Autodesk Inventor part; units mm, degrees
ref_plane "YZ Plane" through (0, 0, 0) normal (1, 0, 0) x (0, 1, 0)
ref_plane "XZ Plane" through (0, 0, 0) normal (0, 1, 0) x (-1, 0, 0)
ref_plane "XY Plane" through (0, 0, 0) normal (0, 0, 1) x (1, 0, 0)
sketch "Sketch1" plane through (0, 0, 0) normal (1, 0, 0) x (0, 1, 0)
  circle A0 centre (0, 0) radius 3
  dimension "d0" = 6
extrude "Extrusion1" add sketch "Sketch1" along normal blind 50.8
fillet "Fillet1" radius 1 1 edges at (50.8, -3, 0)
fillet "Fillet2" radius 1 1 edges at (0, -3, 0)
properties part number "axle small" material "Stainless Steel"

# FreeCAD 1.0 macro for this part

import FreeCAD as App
import Part
import Sketcher


def edges_at(feature, points):
    """Names of the edges that pass closest to the given points."""
    edges = feature.Shape.Edges
    near = lambda p: min(range(len(edges)), key=lambda i: edges[i].distToShape(Part.Vertex(*p))[0])
    return sorted({f"Edge{near(p) + 1}" for p in points})

doc = App.newDocument("Part")
body = doc.addObject("PartDesign::Body", "Body")

# Sketch on YZ plane
sketch1 = doc.addObject("Sketcher::SketchObject", "Sketch")
body.addObject(sketch1)
sketch1.AttachmentSupport = (doc.YZ_Plane, [""])
sketch1.MapMode = "FlatFace"
sketch1.addGeometry(Part.Circle(App.Vector(0, 0, 0), App.Vector(0, 0, 1), 3), False)
sketch1.addConstraint(Sketcher.Constraint("Coincident", 0, 3, -1, 1))
sketch1.addConstraint(Sketcher.Constraint("Diameter", 0, 6.0))
pad1 = doc.addObject("PartDesign::Pad", "Pad")
body.addObject(pad1)
pad1.Profile = sketch1
pad1.Length = 50.8
doc.recompute()

fillet = doc.addObject("PartDesign::Fillet", "Fillet")
body.addObject(fillet)
fillet.Base = (pad1, edges_at(pad1, [(50.8, -3, 0)]))
fillet.Radius = 1
doc.recompute()

fillet2 = doc.addObject("PartDesign::Fillet", "Fillet001")
body.addObject(fillet2)
fillet2.Base = (fillet, edges_at(fillet, [(0, -3, 0)]))
fillet2.Radius = 1

doc.recompute()
